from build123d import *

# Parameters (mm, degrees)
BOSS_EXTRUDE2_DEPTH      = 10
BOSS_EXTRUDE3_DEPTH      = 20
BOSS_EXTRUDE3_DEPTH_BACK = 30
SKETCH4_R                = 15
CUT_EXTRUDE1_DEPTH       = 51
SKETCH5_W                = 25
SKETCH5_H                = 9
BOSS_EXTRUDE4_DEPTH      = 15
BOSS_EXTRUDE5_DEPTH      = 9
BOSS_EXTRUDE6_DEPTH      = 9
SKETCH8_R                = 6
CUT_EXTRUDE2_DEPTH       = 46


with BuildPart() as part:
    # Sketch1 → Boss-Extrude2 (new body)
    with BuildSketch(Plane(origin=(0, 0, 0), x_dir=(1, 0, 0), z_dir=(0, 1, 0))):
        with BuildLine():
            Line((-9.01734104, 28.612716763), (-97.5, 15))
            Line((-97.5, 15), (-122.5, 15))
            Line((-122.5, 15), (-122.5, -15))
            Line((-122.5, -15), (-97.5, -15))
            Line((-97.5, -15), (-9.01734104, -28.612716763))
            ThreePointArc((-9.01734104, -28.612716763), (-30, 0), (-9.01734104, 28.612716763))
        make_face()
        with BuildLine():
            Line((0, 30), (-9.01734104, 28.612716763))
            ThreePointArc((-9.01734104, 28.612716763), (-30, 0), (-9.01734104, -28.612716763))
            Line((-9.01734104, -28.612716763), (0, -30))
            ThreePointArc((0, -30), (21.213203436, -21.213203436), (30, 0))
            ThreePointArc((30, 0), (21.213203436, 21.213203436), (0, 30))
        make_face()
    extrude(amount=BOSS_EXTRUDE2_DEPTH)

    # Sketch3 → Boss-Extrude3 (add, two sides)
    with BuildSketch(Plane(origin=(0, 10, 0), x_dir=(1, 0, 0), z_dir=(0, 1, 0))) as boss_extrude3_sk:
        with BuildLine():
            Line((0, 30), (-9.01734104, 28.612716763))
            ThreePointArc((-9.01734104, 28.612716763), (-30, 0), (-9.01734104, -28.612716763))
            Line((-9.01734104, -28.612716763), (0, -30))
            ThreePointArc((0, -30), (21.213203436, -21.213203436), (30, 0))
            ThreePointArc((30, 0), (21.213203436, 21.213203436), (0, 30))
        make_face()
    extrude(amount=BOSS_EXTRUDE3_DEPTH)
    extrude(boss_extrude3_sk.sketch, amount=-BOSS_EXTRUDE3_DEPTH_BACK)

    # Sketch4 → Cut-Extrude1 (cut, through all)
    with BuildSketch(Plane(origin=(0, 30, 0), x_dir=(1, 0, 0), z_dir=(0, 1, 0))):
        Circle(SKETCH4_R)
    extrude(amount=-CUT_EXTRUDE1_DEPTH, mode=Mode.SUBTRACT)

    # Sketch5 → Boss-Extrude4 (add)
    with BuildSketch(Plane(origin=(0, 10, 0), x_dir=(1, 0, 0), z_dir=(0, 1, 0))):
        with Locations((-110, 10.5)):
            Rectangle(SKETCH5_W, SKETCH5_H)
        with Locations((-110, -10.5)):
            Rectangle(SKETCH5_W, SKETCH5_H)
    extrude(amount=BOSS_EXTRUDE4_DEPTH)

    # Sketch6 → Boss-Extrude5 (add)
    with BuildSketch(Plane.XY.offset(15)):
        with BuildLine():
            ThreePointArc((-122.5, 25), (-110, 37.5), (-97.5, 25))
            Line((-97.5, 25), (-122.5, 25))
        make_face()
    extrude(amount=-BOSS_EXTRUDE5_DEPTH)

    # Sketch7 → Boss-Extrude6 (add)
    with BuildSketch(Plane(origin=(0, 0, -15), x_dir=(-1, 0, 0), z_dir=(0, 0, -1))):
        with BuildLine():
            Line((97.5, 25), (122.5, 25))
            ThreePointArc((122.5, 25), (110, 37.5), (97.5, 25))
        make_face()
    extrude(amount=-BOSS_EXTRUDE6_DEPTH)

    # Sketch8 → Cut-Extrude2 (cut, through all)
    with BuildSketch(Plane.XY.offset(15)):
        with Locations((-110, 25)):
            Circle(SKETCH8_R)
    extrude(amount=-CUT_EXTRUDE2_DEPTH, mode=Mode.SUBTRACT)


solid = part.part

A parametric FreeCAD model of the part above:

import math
import FreeCAD as App
import Part
import Sketcher


def add_polygon(sketch, points):
    """Adds a closed chain of lines whose ends are joined by coincident constraints."""
    first, n = sketch.GeometryCount, len(points)
    for a, b in zip(points, points[1:] + points[:1]):
        sketch.addGeometry(Part.LineSegment(App.Vector(*a, 0), App.Vector(*b, 0)), False)
    for i in range(n):
        sketch.addConstraint(Sketcher.Constraint("Coincident", first + i, 2, first + (i + 1) % n, 1))

doc = App.newDocument("Part")
body = doc.addObject("PartDesign::Body", "Body")

sketch1 = body.newObject("Sketcher::SketchObject", "Sketch")
sketch1.AttachmentSupport = (doc.getObject("XZ_Plane"), [""])
sketch1.MapMode = "FlatFace"
sketch1.addGeometry(Part.LineSegment(App.Vector(-9, -29, 0), App.Vector(-98, -15, 0)), False)
sketch1.addGeometry(Part.LineSegment(App.Vector(-98, -15, 0), App.Vector(-122, -15, 0)), False)
sketch1.addGeometry(Part.LineSegment(App.Vector(-122, -15, 0), App.Vector(-122, 15, 0)), False)
sketch1.addGeometry(Part.LineSegment(App.Vector(-122, 15, 0), App.Vector(-98, 15, 0)), False)
sketch1.addGeometry(Part.LineSegment(App.Vector(-98, 15, 0), App.Vector(-9, 29, 0)), False)
sketch1.addGeometry(Part.LineSegment(App.Vector(-9, 29, 0), App.Vector(0, 30, 0)), False)
sketch1.addGeometry(Part.ArcOfCircle(Part.Circle(App.Vector(0, 0, 0), App.Vector(0, 0, 1), 30), math.radians(0), math.radians(90)), False)
sketch1.addGeometry(Part.ArcOfCircle(Part.Circle(App.Vector(0, 0, 0), App.Vector(0, 0, 1), 30), math.radians(-90), math.radians(0)), False)
sketch1.addGeometry(Part.LineSegment(App.Vector(0, -30, 0), App.Vector(-9, -29, 0)), False)
sketch1.addConstraint(Sketcher.Constraint("Coincident", 0, 2, 1, 1))
sketch1.addConstraint(Sketcher.Constraint("Coincident", 1, 2, 2, 1))
sketch1.addConstraint(Sketcher.Constraint("Coincident", 2, 2, 3, 1))
sketch1.addConstraint(Sketcher.Constraint("Coincident", 3, 2, 4, 1))
sketch1.addConstraint(Sketcher.Constraint("Coincident", 4, 2, 5, 1))
sketch1.addConstraint(Sketcher.Constraint("Coincident", 5, 2, 6, 2))
sketch1.addConstraint(Sketcher.Constraint("Tangent", 6, 1, 7, 2))
sketch1.addConstraint(Sketcher.Constraint("Coincident", 7, 1, 8, 1))
sketch1.addConstraint(Sketcher.Constraint("Coincident", 8, 2, 0, 1))
sketch1.addConstraint(Sketcher.Constraint("Horizontal", 1))
sketch1.addConstraint(Sketcher.Constraint("Vertical", 2))
sketch1.addConstraint(Sketcher.Constraint("Horizontal", 3))
sketch1.addConstraint(Sketcher.Constraint("Coincident", 6, 3, -1, 1))
sketch1.addConstraint(Sketcher.Constraint("Equal", 6, 7))
sketch1.addConstraint(Sketcher.Constraint("Symmetric", 0, 2, 3, 2, -1))
sketch1.addConstraint(Sketcher.Constraint("Symmetric", 4, 2, 8, 2, -1))
sketch1.addConstraint(Sketcher.Constraint("PointOnObject", 5, 2, -2))
sketch1.addConstraint(Sketcher.Constraint("PointOnObject", 6, 1, -1))
sketch1.addConstraint(Sketcher.Constraint("PointOnObject", 7, 1, -2))
sketch1.addConstraint(Sketcher.Constraint("Parallel", 4, 5))
sketch1.addConstraint(Sketcher.Constraint("Radius", 6, 30.0))
sketch1.addConstraint(Sketcher.Constraint("DistanceX", 1, 2, 1, 1, 25.0))
sketch1.addConstraint(Sketcher.Constraint("DistanceY", 2, 1, 2, 2, 30.0))
sketch1.addConstraint(Sketcher.Constraint("DistanceX", 0, 2, -1, 1, 97.5))
sketch1.addConstraint(Sketcher.Constraint("Distance", 5, 9.123431))
pad1 = body.newObject("PartDesign::Pad", "Pad")
pad1.Profile = sketch1
pad1.Length = 10
pad1.Reversed = True

sketch2 = body.newObject("Sketcher::SketchObject", "Sketch001")
sketch2.AttachmentSupport = (doc.getObject("XZ_Plane"), [""])
sketch2.MapMode = "FlatFace"
sketch2.AttachmentOffset = App.Placement(App.Vector(0, 0, -10), App.Rotation())
sketch2.addGeometry(Part.LineSegment(App.Vector(0, -30, 0), App.Vector(-9, -29, 0)), False)
sketch2.addGeometry(Part.ArcOfCircle(Part.Circle(App.Vector(0, 0, 0), App.Vector(0, 0, 1), 30), math.radians(107), math.radians(253)), False)
sketch2.addGeometry(Part.LineSegment(App.Vector(-9, 29, 0), App.Vector(0, 30, 0)), False)
sketch2.addGeometry(Part.ArcOfCircle(Part.Circle(App.Vector(0, 0, 0), App.Vector(0, 0, 1), 30), math.radians(0), math.radians(90)), False)
sketch2.addGeometry(Part.ArcOfCircle(Part.Circle(App.Vector(0, 0, 0), App.Vector(0, 0, 1), 30), math.radians(-90), math.radians(0)), False)
sketch2.addConstraint(Sketcher.Constraint("Coincident", 0, 2, 1, 2))
sketch2.addConstraint(Sketcher.Constraint("Coincident", 1, 1, 2, 1))
sketch2.addConstraint(Sketcher.Constraint("Coincident", 2, 2, 3, 2))
sketch2.addConstraint(Sketcher.Constraint("Tangent", 3, 1, 4, 2))
sketch2.addConstraint(Sketcher.Constraint("Coincident", 4, 1, 0, 1))
sketch2.addConstraint(Sketcher.Constraint("Coincident", 1, 3, -1, 1))
sketch2.addConstraint(Sketcher.Constraint("Coincident", 3, 3, -1, 1))
sketch2.addConstraint(Sketcher.Constraint("Equal", 1, 3))
sketch2.addConstraint(Sketcher.Constraint("Equal", 3, 4))
sketch2.addConstraint(Sketcher.Constraint("PointOnObject", 2, 2, -2))
sketch2.addConstraint(Sketcher.Constraint("PointOnObject", 3, 1, -1))
sketch2.addConstraint(Sketcher.Constraint("PointOnObject", 4, 1, -2))
sketch2.addConstraint(Sketcher.Constraint("Vertical", 0, 2, 1, 1))
sketch2.addConstraint(Sketcher.Constraint("Radius", 1, 30.0))
sketch2.addConstraint(Sketcher.Constraint("Distance", 0, 9.123431))
pad2 = body.newObject("PartDesign::Pad", "Pad001")
pad2.Profile = sketch2
pad2.Type = "TwoLengths"
pad2.Length = 20
pad2.Length2 = 30
pad2.Reversed = True

sketch3 = body.newObject("Sketcher::SketchObject", "Sketch002")
sketch3.AttachmentSupport = (doc.getObject("XZ_Plane"), [""])
sketch3.MapMode = "FlatFace"
sketch3.AttachmentOffset = App.Placement(App.Vector(0, 0, -30), App.Rotation())
sketch3.addGeometry(Part.Circle(App.Vector(0, 0, 0), App.Vector(0, 0, 1), 15), False)
sketch3.addConstraint(Sketcher.Constraint("Coincident", 0, 3, -1, 1))
sketch3.addConstraint(Sketcher.Constraint("Diameter", 0, 30.0))
pocket1 = body.newObject("PartDesign::Pocket", "Pocket")
pocket1.Profile = sketch3
pocket1.Type = "ThroughAll"
pocket1.Reversed = True

sketch4 = body.newObject("Sketcher::SketchObject", "Sketch003")
sketch4.AttachmentSupport = (doc.getObject("XZ_Plane"), [""])
sketch4.MapMode = "FlatFace"
sketch4.AttachmentOffset = App.Placement(App.Vector(0, 0, -10), App.Rotation())
add_polygon(sketch4, [(-122, -15), (-122, -6), (-98, -6), (-98, -15)])
add_polygon(sketch4, [(-122, 6), (-122, 15), (-98, 15), (-98, 6)])
sketch4.addConstraint(Sketcher.Constraint("Vertical", 0))
sketch4.addConstraint(Sketcher.Constraint("Horizontal", 1))
sketch4.addConstraint(Sketcher.Constraint("Vertical", 2))
sketch4.addConstraint(Sketcher.Constraint("Horizontal", 3))
sketch4.addConstraint(Sketcher.Constraint("Vertical", 4))
sketch4.addConstraint(Sketcher.Constraint("Horizontal", 5))
sketch4.addConstraint(Sketcher.Constraint("Vertical", 6))
sketch4.addConstraint(Sketcher.Constraint("Horizontal", 7))
sketch4.addConstraint(Sketcher.Constraint("Symmetric", 3, 2, 4, 2, -1))
sketch4.addConstraint(Sketcher.Constraint("Symmetric", 1, 2, 6, 2, -1))
sketch4.addConstraint(Sketcher.Constraint("DistanceX", 1, 1, 1, 2, 25.0))
sketch4.addConstraint(Sketcher.Constraint("DistanceY", 0, 1, 0, 2, 9.0))
sketch4.addConstraint(Sketcher.Constraint("DistanceY", 0, 2, -1, 1, 6.0))
sketch4.addConstraint(Sketcher.Constraint("DistanceX", 0, 2, -1, 1, 122.5))
pad3 = body.newObject("PartDesign::Pad", "Pad002")
pad3.Profile = sketch4
pad3.Length = 15
pad3.Reversed = True

sketch5 = body.newObject("Sketcher::SketchObject", "Sketch004")
sketch5.AttachmentSupport = (doc.getObject("XY_Plane"), [""])
sketch5.MapMode = "FlatFace"
sketch5.AttachmentOffset = App.Placement(App.Vector(0, 0, 15), App.Rotation())
sketch5.addGeometry(Part.ArcOfCircle(Part.Circle(App.Vector(-110, 25, 0), App.Vector(0, 0, 1), 12), math.radians(0), math.radians(180)), False)
sketch5.addGeometry(Part.LineSegment(App.Vector(-122, 25, 0), App.Vector(-98, 25, 0)), False)
sketch5.addConstraint(Sketcher.Constraint("Coincident", 0, 1, 1, 2))
sketch5.addConstraint(Sketcher.Constraint("Coincident", 1, 1, 0, 2))
sketch5.addConstraint(Sketcher.Constraint("Horizontal", 1))
sketch5.addConstraint(Sketcher.Constraint("Radius", 0, 12.5))
sketch5.addConstraint(Sketcher.Constraint("DistanceX", 0, 3, -1, 1, 110.0))
sketch5.addConstraint(Sketcher.Constraint("DistanceY", -1, 1, 0, 3, 25.0))
sketch5.addConstraint(Sketcher.Constraint("DistanceY", -1, 1, 0, 1, 25.0))
pad4 = body.newObject("PartDesign::Pad", "Pad003")
pad4.Profile = sketch5
pad4.Length = 9
pad4.Reversed = True

sketch6 = body.newObject("Sketcher::SketchObject", "Sketch005")
sketch6.AttachmentSupport = (doc.getObject("XY_Plane"), [""])
sketch6.MapMode = "FlatFace"
sketch6.AttachmentOffset = App.Placement(App.Vector(0, 0, -15), App.Rotation())
sketch6.addGeometry(Part.LineSegment(App.Vector(-98, 25, 0), App.Vector(-122, 25, 0)), False)
sketch6.addGeometry(Part.ArcOfCircle(Part.Circle(App.Vector(-110, 25, 0), App.Vector(0, 0, 1), 12), math.radians(0), math.radians(180)), False)
sketch6.addConstraint(Sketcher.Constraint("Coincident", 0, 1, 1, 1))
sketch6.addConstraint(Sketcher.Constraint("Coincident", 1, 2, 0, 2))
sketch6.addConstraint(Sketcher.Constraint("Horizontal", 0))
sketch6.addConstraint(Sketcher.Constraint("Horizontal", 1, 3, 0, 1))
sketch6.addConstraint(Sketcher.Constraint("Radius", 1, 12.5))
sketch6.addConstraint(Sketcher.Constraint("DistanceX", 1, 3, -1, 1, 110.0))
sketch6.addConstraint(Sketcher.Constraint("DistanceY", -1, 1, 1, 3, 25.0))
pad5 = body.newObject("PartDesign::Pad", "Pad004")
pad5.Profile = sketch6
pad5.Length = 9

sketch7 = body.newObject("Sketcher::SketchObject", "Sketch006")
sketch7.AttachmentSupport = (doc.getObject("XY_Plane"), [""])
sketch7.MapMode = "FlatFace"
sketch7.AttachmentOffset = App.Placement(App.Vector(0, 0, 15), App.Rotation())
sketch7.addGeometry(Part.Circle(App.Vector(-110, 25, 0), App.Vector(0, 0, 1), 6), False)
sketch7.addConstraint(Sketcher.Constraint("Diameter", 0, 12.0))
sketch7.addConstraint(Sketcher.Constraint("DistanceX", 0, 3, -1, 1, 110.0))
sketch7.addConstraint(Sketcher.Constraint("DistanceY", -1, 1, 0, 3, 25.0))
pocket2 = body.newObject("PartDesign::Pocket", "Pocket001")
pocket2.Profile = sketch7
pocket2.Type = "ThroughAll"

doc.recompute()
